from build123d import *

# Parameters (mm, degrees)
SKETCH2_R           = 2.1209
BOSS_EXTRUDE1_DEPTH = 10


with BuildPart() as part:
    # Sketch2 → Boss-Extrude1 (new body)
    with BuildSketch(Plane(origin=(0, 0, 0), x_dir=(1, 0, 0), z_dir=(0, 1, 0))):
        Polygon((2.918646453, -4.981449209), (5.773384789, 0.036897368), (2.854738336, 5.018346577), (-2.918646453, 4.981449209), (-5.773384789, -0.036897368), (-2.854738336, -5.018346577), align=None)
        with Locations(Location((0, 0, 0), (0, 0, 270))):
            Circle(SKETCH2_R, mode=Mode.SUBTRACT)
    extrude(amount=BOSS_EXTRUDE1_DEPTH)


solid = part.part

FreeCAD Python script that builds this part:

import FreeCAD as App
import Part
import Sketcher
Q = App.Units.Quantity


def add_polygon(sketch, points):
    """Adds a closed chain of lines whose ends are joined by coincident constraints."""
    first, n = sketch.GeometryCount, len(points)
    for a, b in zip(points, points[1:] + points[:1]):
        sketch.addGeometry(Part.LineSegment(App.Vector(*a, 0), App.Vector(*b, 0)), False)
    for i in range(n):
        sketch.addConstraint(Sketcher.Constraint("Coincident", first + i, 2, first + (i + 1) % n, 1))

doc = App.newDocument("Part")
body = doc.addObject("PartDesign::Body", "Body")

sketch1 = doc.addObject("Sketcher::SketchObject", "Sketch")
body.addObject(sketch1)
sketch1.AttachmentSupport = (doc.XZ_Plane, [""])
sketch1.MapMode = "FlatFace"
add_polygon(sketch1, [(2.918646, 4.981449), (5.773385, -0.036897), (2.854738, -5.018347), (-2.918646, -4.981449), (-5.773385, 0.036897), (-2.854738, 5.018347)])
sketch1.addGeometry(Part.Circle(App.Vector(0, 0, 0), App.Vector(0, 0, 1), 2.1209), False)
sketch1.addConstraint(Sketcher.Constraint("Coincident", 6, 3, -1, 1))
sketch1.addConstraint(Sketcher.Constraint("Symmetric", 0, 2, 3, 2, -1, 1))
sketch1.addConstraint(Sketcher.Constraint("Symmetric", 1, 2, 4, 2, -1, 1))
sketch1.addConstraint(Sketcher.Constraint("Symmetric", 2, 2, 5, 2, -1, 1))
sketch1.addConstraint(Sketcher.Constraint("Equal", 0, 1))
sketch1.addConstraint(Sketcher.Constraint("Equal", 1, 2))
sketch1.addConstraint(Sketcher.Constraint("Diameter", 6, Q("4.2418 mm")))
sketch1.addConstraint(Sketcher.Constraint("DistanceX", -1, 1, 1, 2, Q("2.854738 mm")))
sketch1.addConstraint(Sketcher.Constraint("DistanceY", 2, 2, -1, 1, Q("4.981449 mm")))
sketch1.addConstraint(Sketcher.Constraint("DistanceY", 1, 2, 0, 2, Q("4.981449 mm")))
sketch1.addConstraint(Sketcher.Constraint("DistanceX", 2, 2, 0, 2, Q("8.692031 mm")))
pad1 = doc.addObject("PartDesign::Pad", "Pad")
body.addObject(pad1)
pad1.Profile = sketch1
pad1.Length = 10
pad1.Reversed = True

doc.recompute()
